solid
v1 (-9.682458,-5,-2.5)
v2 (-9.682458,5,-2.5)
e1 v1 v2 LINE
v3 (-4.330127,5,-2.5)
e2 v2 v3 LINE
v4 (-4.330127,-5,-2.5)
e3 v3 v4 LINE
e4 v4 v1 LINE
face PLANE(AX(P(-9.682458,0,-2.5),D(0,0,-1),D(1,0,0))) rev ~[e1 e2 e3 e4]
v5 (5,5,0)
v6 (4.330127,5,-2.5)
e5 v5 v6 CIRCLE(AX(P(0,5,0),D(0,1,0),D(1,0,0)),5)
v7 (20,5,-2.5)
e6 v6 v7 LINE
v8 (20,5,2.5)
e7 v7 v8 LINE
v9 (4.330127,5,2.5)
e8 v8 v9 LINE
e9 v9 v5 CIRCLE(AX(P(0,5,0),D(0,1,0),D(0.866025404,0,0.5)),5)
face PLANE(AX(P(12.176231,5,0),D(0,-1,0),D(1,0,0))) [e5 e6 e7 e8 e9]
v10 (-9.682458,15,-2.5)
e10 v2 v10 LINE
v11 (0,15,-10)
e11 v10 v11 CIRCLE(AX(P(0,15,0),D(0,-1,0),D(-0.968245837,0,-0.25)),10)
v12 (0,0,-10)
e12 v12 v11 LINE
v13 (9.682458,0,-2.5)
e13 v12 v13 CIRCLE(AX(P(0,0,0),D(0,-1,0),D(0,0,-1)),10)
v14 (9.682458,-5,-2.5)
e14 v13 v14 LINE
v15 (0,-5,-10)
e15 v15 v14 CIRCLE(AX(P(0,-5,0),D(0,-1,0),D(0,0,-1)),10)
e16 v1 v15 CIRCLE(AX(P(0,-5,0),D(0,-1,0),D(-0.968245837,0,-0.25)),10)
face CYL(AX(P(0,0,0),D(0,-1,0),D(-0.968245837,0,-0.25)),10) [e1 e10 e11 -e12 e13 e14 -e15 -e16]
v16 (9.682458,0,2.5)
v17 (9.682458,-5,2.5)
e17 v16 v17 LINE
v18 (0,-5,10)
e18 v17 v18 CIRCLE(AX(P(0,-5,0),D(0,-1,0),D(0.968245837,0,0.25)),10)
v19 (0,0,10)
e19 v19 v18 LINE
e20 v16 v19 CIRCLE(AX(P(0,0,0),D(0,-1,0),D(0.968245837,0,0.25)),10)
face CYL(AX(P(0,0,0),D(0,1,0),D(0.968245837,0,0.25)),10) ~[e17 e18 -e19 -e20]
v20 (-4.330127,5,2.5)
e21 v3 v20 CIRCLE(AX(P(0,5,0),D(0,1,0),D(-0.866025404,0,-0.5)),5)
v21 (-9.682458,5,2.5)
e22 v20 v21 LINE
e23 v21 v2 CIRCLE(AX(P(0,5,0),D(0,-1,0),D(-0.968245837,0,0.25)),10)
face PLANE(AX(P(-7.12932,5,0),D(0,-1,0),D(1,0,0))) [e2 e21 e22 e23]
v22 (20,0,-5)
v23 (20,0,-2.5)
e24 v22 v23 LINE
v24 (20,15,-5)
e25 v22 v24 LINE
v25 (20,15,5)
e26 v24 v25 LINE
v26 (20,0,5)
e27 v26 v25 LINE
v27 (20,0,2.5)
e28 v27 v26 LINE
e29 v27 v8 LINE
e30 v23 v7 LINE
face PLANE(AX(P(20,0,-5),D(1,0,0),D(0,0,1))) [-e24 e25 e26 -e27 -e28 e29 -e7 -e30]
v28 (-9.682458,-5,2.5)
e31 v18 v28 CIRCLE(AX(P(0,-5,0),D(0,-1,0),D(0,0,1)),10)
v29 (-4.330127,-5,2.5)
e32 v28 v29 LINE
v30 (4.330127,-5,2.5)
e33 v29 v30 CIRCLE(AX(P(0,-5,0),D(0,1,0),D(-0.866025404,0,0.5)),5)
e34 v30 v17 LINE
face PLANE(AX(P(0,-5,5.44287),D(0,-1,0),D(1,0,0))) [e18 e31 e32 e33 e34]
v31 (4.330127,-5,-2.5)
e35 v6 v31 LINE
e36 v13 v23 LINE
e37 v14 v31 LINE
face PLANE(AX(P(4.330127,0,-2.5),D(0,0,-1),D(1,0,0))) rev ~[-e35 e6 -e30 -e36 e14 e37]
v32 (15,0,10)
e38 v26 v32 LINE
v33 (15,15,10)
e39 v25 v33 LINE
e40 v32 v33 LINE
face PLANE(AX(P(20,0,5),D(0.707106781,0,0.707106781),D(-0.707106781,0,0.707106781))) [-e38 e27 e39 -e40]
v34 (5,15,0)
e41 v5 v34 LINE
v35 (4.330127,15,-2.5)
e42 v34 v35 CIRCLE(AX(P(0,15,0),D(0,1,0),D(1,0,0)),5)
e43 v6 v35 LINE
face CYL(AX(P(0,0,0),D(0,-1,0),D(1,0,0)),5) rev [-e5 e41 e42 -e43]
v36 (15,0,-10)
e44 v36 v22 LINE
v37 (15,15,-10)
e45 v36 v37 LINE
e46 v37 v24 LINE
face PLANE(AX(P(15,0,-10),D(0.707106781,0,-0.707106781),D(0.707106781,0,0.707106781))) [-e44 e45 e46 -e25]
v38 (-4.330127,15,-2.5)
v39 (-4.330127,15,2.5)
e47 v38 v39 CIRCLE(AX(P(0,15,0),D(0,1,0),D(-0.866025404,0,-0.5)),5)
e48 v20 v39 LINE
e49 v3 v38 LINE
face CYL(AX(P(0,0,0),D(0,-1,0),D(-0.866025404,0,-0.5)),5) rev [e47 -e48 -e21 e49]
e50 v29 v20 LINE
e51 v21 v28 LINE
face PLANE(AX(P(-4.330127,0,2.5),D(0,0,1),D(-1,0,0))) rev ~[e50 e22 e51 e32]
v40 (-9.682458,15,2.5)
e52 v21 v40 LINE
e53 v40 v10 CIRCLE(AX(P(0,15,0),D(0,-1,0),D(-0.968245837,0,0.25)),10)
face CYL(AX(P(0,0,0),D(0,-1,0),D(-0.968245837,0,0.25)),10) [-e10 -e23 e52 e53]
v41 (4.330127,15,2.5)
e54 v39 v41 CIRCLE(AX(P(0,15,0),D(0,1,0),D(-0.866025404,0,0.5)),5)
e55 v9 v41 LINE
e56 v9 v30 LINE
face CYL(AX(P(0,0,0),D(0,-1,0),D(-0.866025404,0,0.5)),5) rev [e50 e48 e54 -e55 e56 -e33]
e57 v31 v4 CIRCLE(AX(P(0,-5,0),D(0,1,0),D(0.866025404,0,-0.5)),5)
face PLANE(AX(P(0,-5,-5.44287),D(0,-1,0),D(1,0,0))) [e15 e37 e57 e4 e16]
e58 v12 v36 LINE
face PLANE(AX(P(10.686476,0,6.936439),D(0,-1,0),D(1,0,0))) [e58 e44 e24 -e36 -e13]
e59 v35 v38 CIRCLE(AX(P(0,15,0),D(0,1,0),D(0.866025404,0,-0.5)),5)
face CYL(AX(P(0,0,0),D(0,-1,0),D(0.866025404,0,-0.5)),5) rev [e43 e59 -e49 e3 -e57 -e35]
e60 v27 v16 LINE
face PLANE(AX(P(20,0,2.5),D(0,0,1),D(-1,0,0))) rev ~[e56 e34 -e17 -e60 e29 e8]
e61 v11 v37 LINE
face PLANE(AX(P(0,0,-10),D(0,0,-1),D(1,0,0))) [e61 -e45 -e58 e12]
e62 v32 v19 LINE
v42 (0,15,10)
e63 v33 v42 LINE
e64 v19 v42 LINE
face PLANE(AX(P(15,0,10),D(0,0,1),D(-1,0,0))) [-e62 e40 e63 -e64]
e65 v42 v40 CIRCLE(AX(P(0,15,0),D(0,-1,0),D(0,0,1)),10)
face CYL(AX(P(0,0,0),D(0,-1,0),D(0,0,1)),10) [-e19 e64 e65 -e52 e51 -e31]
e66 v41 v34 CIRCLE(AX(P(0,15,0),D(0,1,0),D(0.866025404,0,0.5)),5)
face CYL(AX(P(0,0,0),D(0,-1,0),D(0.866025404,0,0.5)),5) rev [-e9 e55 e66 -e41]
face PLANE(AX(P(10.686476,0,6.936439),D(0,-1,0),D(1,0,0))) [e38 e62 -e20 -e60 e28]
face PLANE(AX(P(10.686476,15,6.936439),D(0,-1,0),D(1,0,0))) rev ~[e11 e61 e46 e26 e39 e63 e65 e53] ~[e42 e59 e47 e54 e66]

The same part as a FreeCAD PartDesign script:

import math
import FreeCAD as App
import Part
import Sketcher

V = App.Vector

doc = App.newDocument("Part")
body = doc.addObject("PartDesign::Body", "Body")

# Sketch on XZ plane
sketch1 = body.newObject("Sketcher::SketchObject", "Sketch")
sketch1.AttachmentSupport = (doc.getObject("XZ_Plane"), [""])
sketch1.MapMode = "FlatFace"
sketch1.addGeometry([
    Part.ArcOfCircle(Part.Circle(V(0, 0, 0), V(0, 0, 1), 5), math.radians(30), math.radians(150)),  # 0
    Part.LineSegment(V(4, 2, 0), V(10, 2, 0)),  # 1
    Part.ArcOfCircle(Part.Circle(V(0, 0, 0), V(0, 0, 1), 10), math.radians(14), math.radians(90)),  # 2
    Part.ArcOfCircle(Part.Circle(V(0, 0, 0), V(0, 0, 1), 10), math.radians(90), math.radians(166)),  # 3
    Part.LineSegment(V(-10, 2, 0), V(-4, 2, 0)),  # 4
], False)
sketch1.addConstraint([
    Sketcher.Constraint("Coincident", 0, 1, 1, 1),
    Sketcher.Constraint("Coincident", 1, 2, 2, 1),
    Sketcher.Constraint("Tangent", 2, 2, 3, 1),
    Sketcher.Constraint("Coincident", 3, 2, 4, 1),
    Sketcher.Constraint("Coincident", 4, 2, 0, 2),
    Sketcher.Constraint("Horizontal", 1),
    Sketcher.Constraint("Horizontal", 4),
    Sketcher.Constraint("Coincident", 0, 3, -1, 1),
    Sketcher.Constraint("Coincident", 2, 3, -1, 1),
    Sketcher.Constraint("Equal", 2, 3),
    Sketcher.Constraint("PointOnObject", 2, 2, -2),
    Sketcher.Constraint("Horizontal", 1, 2, 3, 2),
    Sketcher.Constraint("Radius", 0, 5.0),
    Sketcher.Constraint("Radius", 2, 10.0),
    Sketcher.Constraint("DistanceY", -1, 1, 0, 1, 2.5),
])
pad1 = body.newObject("PartDesign::Pad", "Pad")
pad1.Profile = sketch1
pad1.Length = 5
body2 = doc.addObject("PartDesign::Body", "Body001")

# Sketch on XZ plane
sketch2 = body2.newObject("Sketcher::SketchObject", "Sketch001")
sketch2.AttachmentSupport = (doc.getObject("XZ_Plane001"), [""])
sketch2.MapMode = "FlatFace"
sketch2.addGeometry([
    Part.LineSegment(V(10, -2, 0), V(4, -2, 0)),  # 0
    Part.ArcOfCircle(Part.Circle(V(0, 0, 0), V(0, 0, 1), 5), math.radians(-150), math.radians(-30)),  # 1
    Part.LineSegment(V(-4, -2, 0), V(-10, -2, 0)),  # 2
    Part.ArcOfCircle(Part.Circle(V(0, 0, 0), V(0, 0, 1), 10), math.radians(-166), math.radians(-90)),  # 3
    Part.ArcOfCircle(Part.Circle(V(0, 0, 0), V(0, 0, 1), 10), math.radians(-90), math.radians(-14)),  # 4
], False)
sketch2.addConstraint([
    Sketcher.Constraint("Coincident", 0, 2, 1, 2),
    Sketcher.Constraint("Coincident", 1, 1, 2, 1),
    Sketcher.Constraint("Coincident", 2, 2, 3, 1),
    Sketcher.Constraint("Tangent", 3, 2, 4, 1),
    Sketcher.Constraint("Coincident", 4, 2, 0, 1),
    Sketcher.Constraint("Horizontal", 0),
    Sketcher.Constraint("Horizontal", 2),
    Sketcher.Constraint("Coincident", 1, 3, -1, 1),
    Sketcher.Constraint("Coincident", 3, 3, -1, 1),
    Sketcher.Constraint("Equal", 3, 4),
    Sketcher.Constraint("PointOnObject", 3, 2, -2),
    Sketcher.Constraint("Horizontal", 0, 2, 1, 1),
    Sketcher.Constraint("Radius", 1, 5.0),
    Sketcher.Constraint("Radius", 3, 10.0),
    Sketcher.Constraint("DistanceY", 0, 2, -1, 1, 2.5),
])
pad2 = body2.newObject("PartDesign::Pad", "Pad001")
pad2.Profile = sketch2
pad2.Length = 5
body.AllowCompound = True
doc.recompute()

boolean = body.newObject("PartDesign::Boolean", "Boolean")
boolean.Type = "Fuse"
boolean.addObjects([body2])

# Sketch on XZ plane
sketch3 = body.newObject("Sketcher::SketchObject", "Sketch002")
sketch3.AttachmentSupport = (doc.getObject("XZ_Plane"), [""])
sketch3.MapMode = "FlatFace"
sketch3.addGeometry([
    Part.LineSegment(V(0, -10, 0), V(15, -10, 0)),  # 0
    Part.LineSegment(V(15, -10, 0), V(20, -5, 0)),  # 1
    Part.LineSegment(V(20, -5, 0), V(20, 5, 0)),  # 2
    Part.LineSegment(V(20, 5, 0), V(15, 10, 0)),  # 3
    Part.LineSegment(V(15, 10, 0), V(0, 10, 0)),  # 4
    Part.ArcOfCircle(Part.Circle(V(0, 0, 0), V(0, 0, 1), 10), math.radians(90), math.radians(166)),  # 5
    Part.ArcOfCircle(Part.Circle(V(0, 0, 0), V(0, 0, 1), 10), math.radians(166), math.radians(194)),  # 6
    Part.ArcOfCircle(Part.Circle(V(0, 0, 0), V(0, 0, 1), 10), math.radians(-166), math.radians(-90)),  # 7
    Part.ArcOfCircle(Part.Circle(V(0, 0, 0), V(0, 0, 1), 5), math.radians(0), math.radians(30)),  # 8
    Part.ArcOfCircle(Part.Circle(V(0, 0, 0), V(0, 0, 1), 5), math.radians(-30), math.radians(0)),  # 9
    Part.ArcOfCircle(Part.Circle(V(0, 0, 0), V(0, 0, 1), 5), math.radians(-150), math.radians(-30)),  # 10
    Part.ArcOfCircle(Part.Circle(V(0, 0, 0), V(0, 0, 1), 5), math.radians(150), math.radians(210)),  # 11
    Part.ArcOfCircle(Part.Circle(V(0, 0, 0), V(0, 0, 1), 5), math.radians(30), math.radians(150)),  # 12
], False)
sketch3.addConstraint([
    Sketcher.Constraint("Coincident", 0, 2, 1, 1),
    Sketcher.Constraint("Coincident", 1, 2, 2, 1),
    Sketcher.Constraint("Coincident", 2, 2, 3, 1),
    Sketcher.Constraint("Coincident", 3, 2, 4, 1),
    Sketcher.Constraint("Tangent", 4, 2, 5, 1),
    Sketcher.Constraint("Tangent", 5, 2, 6, 1),
    Sketcher.Constraint("Tangent", 6, 2, 7, 1),
    Sketcher.Constraint("Tangent", 7, 2, 0, 1),
    Sketcher.Constraint("Tangent", 8, 1, 9, 2),
    Sketcher.Constraint("Tangent", 9, 1, 10, 2),
    Sketcher.Constraint("Tangent", 10, 1, 11, 2),
    Sketcher.Constraint("Tangent", 11, 1, 12, 2),
    Sketcher.Constraint("Tangent", 12, 1, 8, 2),
    Sketcher.Constraint("Horizontal", 0),
    Sketcher.Constraint("Vertical", 2),
    Sketcher.Constraint("Horizontal", 4),
    Sketcher.Constraint("Coincident", 5, 3, -1, 1),
    Sketcher.Constraint("Coincident", 7, 3, -1, 1),
    Sketcher.Constraint("Coincident", 8, 3, -1, 1),
    Sketcher.Constraint("Coincident", 10, 3, -1, 1),
    Sketcher.Constraint("PointOnObject", 8, 1, -1),
    Sketcher.Constraint("Perpendicular", 1, 3),
    Sketcher.Constraint("Horizontal", 6, 2, 9, 1),
    Sketcher.Constraint("Horizontal", 9, 1, 10, 1),
    Sketcher.Constraint("Horizontal", 5, 2, 11, 1),
    Sketcher.Constraint("Horizontal", 11, 1, 12, 1),
    Sketcher.Constraint("Vertical", 0, 2, 3, 2),
    Sketcher.Constraint("Vertical", 5, 2, 6, 2),
    Sketcher.Constraint("Equal", 1, 3),
    Sketcher.Constraint("Radius", 5, 10.0),
    Sketcher.Constraint("Radius", 8, 5.0),
    Sketcher.Constraint("DistanceX", 0, 1, 0, 2, 15.0),
    Sketcher.Constraint("DistanceY", 2, 1, 2, 2, 10.0),
    Sketcher.Constraint("DistanceY", 6, 2, 5, 2, 5.0),
])
pad3 = body.newObject("PartDesign::Pad", "Pad002")
pad3.Profile = sketch3
pad3.Length = 15
pad3.Reversed = True

# Sketch on XZ plane
sketch4 = body.newObject("Sketcher::SketchObject", "Sketch003")
sketch4.AttachmentSupport = (doc.getObject("XZ_Plane"), [""])
sketch4.MapMode = "FlatFace"
sketch4.addGeometry([
    Part.ArcOfCircle(Part.Circle(V(0, 0, 0), V(0, 0, 1), 5), math.radians(0), math.radians(30)),  # 0
    Part.ArcOfCircle(Part.Circle(V(0, 0, 0), V(0, 0, 1), 5), math.radians(-30), math.radians(0)),  # 1
    Part.LineSegment(V(4.3, -2.5, 0), V(20, -2.5, 0)),  # 2
    Part.LineSegment(V(20, -2.5, 0), V(20, 2.5, 0)),  # 3
    Part.LineSegment(V(20, 2.5, 0), V(4.3, 2.5, 0)),  # 4
    Part.ArcOfCircle(Part.Circle(V(0, 0, 0), V(0, 0, 1), 5), math.radians(150), math.radians(210)),  # 5
    Part.LineSegment(V(-4.3, 2.5, 0), V(-9.7, 2.5, 0)),  # 6
    Part.ArcOfCircle(Part.Circle(V(0, 0, 0), V(0, 0, 1), 10), math.radians(166), math.radians(194)),  # 7
    Part.LineSegment(V(-9.7, -2.5, 0), V(-4.3, -2.5, 0)),  # 8
], False)
sketch4.addConstraint([
    Sketcher.Constraint("Tangent", 0, 1, 1, 2),
    Sketcher.Constraint("Coincident", 1, 1, 2, 1),
    Sketcher.Constraint("Coincident", 2, 2, 3, 1),
    Sketcher.Constraint("Coincident", 3, 2, 4, 1),
    Sketcher.Constraint("Coincident", 4, 2, 0, 2),
    Sketcher.Constraint("Coincident", 5, 1, 6, 1),
    Sketcher.Constraint("Coincident", 6, 2, 7, 1),
    Sketcher.Constraint("Coincident", 7, 2, 8, 1),
    Sketcher.Constraint("Coincident", 8, 2, 5, 2),
    Sketcher.Constraint("Horizontal", 2),
    Sketcher.Constraint("Vertical", 3),
    Sketcher.Constraint("Horizontal", 4),
    Sketcher.Constraint("Horizontal", 6),
    Sketcher.Constraint("Horizontal", 8),
    Sketcher.Constraint("Coincident", 0, 3, -1, 1),
    Sketcher.Constraint("Coincident", 5, 3, -1, 1),
    Sketcher.Constraint("Coincident", 7, 3, -1, 1),
    Sketcher.Constraint("Equal", 0, 1),
    Sketcher.Constraint("Equal", 1, 5),
    Sketcher.Constraint("PointOnObject", 0, 1, -1),
    Sketcher.Constraint("Horizontal", 4, 2, 5, 1),
    Sketcher.Constraint("Horizontal", 2, 2, 7, 2),
    Sketcher.Constraint("Vertical", 1, 1, 4, 2),
    Sketcher.Constraint("Radius", 0, 5.0),
    Sketcher.Constraint("Radius", 7, 10.0),
    Sketcher.Constraint("DistanceY", 3, 1, 3, 2, 5.0),
    Sketcher.Constraint("DistanceX", -1, 1, 2, 2, 20.0),
])
pocket1 = body.newObject("PartDesign::Pocket", "Pocket")
pocket1.Profile = sketch4
pocket1.Length = 5

doc.recompute()
